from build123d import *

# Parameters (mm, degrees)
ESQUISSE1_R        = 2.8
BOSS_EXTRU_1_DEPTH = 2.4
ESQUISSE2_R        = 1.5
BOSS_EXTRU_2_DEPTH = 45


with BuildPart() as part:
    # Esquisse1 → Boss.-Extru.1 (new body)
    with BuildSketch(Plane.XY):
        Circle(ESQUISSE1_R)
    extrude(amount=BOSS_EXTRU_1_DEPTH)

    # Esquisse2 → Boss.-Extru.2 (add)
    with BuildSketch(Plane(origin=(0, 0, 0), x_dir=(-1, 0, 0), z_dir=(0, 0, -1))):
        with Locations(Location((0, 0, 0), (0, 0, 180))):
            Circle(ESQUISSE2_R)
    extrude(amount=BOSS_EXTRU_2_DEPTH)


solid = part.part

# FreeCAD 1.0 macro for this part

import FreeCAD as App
import Part
import Sketcher

V = App.Vector

doc = App.newDocument("Part")
params = doc.addObject("Spreadsheet::Sheet", "Params")
for row, (alias, value) in enumerate([
    ("sketch1_diameter", "5.6 mm"),
    ("pad1_length", "2.4 mm"),
    ("sketch2_diameter", "3 mm"),
    ("pad2_length", "45 mm"),
], start=1):
    params.set(f"A{row}", alias)
    params.set(f"B{row}", "=" + value)
    params.setAlias(f"B{row}", alias)

body = doc.addObject("PartDesign::Body", "Body")

sketch1 = doc.addObject("Sketcher::SketchObject", "Sketch")
body.addObject(sketch1)
sketch1.AttachmentSupport = (doc.XY_Plane, [""])
sketch1.MapMode = "FlatFace"
sketch1.addGeometry(Part.Circle(V(0, 0, 0), V(0, 0, 1), 2.8), False)
sketch1.addConstraint([
    Sketcher.Constraint("Coincident", 0, 3, -1, 1),
    Sketcher.Constraint("Diameter", 0, 5.6),
])
sketch1.setExpression("Constraints[1]", "Params.sketch1_diameter")
pad1 = doc.addObject("PartDesign::Pad", "Pad")
body.addObject(pad1)
pad1.Profile = sketch1
pad1.setExpression("Length", "Params.pad1_length")

sketch2 = doc.addObject("Sketcher::SketchObject", "Sketch001")
body.addObject(sketch2)
sketch2.AttachmentSupport = (doc.XY_Plane, [""])
sketch2.MapMode = "FlatFace"
sketch2.addGeometry(Part.Circle(V(0, 0, 0), V(0, 0, 1), 1.5), False)
sketch2.addConstraint([
    Sketcher.Constraint("Coincident", 0, 3, -1, 1),
    Sketcher.Constraint("Diameter", 0, 3.0),
])
sketch2.setExpression("Constraints[1]", "Params.sketch2_diameter")
pad2 = doc.addObject("PartDesign::Pad", "Pad001")
body.addObject(pad2)
pad2.Profile = sketch2
pad2.setExpression("Length", "Params.pad2_length")
pad2.Reversed = True

doc.recompute()
